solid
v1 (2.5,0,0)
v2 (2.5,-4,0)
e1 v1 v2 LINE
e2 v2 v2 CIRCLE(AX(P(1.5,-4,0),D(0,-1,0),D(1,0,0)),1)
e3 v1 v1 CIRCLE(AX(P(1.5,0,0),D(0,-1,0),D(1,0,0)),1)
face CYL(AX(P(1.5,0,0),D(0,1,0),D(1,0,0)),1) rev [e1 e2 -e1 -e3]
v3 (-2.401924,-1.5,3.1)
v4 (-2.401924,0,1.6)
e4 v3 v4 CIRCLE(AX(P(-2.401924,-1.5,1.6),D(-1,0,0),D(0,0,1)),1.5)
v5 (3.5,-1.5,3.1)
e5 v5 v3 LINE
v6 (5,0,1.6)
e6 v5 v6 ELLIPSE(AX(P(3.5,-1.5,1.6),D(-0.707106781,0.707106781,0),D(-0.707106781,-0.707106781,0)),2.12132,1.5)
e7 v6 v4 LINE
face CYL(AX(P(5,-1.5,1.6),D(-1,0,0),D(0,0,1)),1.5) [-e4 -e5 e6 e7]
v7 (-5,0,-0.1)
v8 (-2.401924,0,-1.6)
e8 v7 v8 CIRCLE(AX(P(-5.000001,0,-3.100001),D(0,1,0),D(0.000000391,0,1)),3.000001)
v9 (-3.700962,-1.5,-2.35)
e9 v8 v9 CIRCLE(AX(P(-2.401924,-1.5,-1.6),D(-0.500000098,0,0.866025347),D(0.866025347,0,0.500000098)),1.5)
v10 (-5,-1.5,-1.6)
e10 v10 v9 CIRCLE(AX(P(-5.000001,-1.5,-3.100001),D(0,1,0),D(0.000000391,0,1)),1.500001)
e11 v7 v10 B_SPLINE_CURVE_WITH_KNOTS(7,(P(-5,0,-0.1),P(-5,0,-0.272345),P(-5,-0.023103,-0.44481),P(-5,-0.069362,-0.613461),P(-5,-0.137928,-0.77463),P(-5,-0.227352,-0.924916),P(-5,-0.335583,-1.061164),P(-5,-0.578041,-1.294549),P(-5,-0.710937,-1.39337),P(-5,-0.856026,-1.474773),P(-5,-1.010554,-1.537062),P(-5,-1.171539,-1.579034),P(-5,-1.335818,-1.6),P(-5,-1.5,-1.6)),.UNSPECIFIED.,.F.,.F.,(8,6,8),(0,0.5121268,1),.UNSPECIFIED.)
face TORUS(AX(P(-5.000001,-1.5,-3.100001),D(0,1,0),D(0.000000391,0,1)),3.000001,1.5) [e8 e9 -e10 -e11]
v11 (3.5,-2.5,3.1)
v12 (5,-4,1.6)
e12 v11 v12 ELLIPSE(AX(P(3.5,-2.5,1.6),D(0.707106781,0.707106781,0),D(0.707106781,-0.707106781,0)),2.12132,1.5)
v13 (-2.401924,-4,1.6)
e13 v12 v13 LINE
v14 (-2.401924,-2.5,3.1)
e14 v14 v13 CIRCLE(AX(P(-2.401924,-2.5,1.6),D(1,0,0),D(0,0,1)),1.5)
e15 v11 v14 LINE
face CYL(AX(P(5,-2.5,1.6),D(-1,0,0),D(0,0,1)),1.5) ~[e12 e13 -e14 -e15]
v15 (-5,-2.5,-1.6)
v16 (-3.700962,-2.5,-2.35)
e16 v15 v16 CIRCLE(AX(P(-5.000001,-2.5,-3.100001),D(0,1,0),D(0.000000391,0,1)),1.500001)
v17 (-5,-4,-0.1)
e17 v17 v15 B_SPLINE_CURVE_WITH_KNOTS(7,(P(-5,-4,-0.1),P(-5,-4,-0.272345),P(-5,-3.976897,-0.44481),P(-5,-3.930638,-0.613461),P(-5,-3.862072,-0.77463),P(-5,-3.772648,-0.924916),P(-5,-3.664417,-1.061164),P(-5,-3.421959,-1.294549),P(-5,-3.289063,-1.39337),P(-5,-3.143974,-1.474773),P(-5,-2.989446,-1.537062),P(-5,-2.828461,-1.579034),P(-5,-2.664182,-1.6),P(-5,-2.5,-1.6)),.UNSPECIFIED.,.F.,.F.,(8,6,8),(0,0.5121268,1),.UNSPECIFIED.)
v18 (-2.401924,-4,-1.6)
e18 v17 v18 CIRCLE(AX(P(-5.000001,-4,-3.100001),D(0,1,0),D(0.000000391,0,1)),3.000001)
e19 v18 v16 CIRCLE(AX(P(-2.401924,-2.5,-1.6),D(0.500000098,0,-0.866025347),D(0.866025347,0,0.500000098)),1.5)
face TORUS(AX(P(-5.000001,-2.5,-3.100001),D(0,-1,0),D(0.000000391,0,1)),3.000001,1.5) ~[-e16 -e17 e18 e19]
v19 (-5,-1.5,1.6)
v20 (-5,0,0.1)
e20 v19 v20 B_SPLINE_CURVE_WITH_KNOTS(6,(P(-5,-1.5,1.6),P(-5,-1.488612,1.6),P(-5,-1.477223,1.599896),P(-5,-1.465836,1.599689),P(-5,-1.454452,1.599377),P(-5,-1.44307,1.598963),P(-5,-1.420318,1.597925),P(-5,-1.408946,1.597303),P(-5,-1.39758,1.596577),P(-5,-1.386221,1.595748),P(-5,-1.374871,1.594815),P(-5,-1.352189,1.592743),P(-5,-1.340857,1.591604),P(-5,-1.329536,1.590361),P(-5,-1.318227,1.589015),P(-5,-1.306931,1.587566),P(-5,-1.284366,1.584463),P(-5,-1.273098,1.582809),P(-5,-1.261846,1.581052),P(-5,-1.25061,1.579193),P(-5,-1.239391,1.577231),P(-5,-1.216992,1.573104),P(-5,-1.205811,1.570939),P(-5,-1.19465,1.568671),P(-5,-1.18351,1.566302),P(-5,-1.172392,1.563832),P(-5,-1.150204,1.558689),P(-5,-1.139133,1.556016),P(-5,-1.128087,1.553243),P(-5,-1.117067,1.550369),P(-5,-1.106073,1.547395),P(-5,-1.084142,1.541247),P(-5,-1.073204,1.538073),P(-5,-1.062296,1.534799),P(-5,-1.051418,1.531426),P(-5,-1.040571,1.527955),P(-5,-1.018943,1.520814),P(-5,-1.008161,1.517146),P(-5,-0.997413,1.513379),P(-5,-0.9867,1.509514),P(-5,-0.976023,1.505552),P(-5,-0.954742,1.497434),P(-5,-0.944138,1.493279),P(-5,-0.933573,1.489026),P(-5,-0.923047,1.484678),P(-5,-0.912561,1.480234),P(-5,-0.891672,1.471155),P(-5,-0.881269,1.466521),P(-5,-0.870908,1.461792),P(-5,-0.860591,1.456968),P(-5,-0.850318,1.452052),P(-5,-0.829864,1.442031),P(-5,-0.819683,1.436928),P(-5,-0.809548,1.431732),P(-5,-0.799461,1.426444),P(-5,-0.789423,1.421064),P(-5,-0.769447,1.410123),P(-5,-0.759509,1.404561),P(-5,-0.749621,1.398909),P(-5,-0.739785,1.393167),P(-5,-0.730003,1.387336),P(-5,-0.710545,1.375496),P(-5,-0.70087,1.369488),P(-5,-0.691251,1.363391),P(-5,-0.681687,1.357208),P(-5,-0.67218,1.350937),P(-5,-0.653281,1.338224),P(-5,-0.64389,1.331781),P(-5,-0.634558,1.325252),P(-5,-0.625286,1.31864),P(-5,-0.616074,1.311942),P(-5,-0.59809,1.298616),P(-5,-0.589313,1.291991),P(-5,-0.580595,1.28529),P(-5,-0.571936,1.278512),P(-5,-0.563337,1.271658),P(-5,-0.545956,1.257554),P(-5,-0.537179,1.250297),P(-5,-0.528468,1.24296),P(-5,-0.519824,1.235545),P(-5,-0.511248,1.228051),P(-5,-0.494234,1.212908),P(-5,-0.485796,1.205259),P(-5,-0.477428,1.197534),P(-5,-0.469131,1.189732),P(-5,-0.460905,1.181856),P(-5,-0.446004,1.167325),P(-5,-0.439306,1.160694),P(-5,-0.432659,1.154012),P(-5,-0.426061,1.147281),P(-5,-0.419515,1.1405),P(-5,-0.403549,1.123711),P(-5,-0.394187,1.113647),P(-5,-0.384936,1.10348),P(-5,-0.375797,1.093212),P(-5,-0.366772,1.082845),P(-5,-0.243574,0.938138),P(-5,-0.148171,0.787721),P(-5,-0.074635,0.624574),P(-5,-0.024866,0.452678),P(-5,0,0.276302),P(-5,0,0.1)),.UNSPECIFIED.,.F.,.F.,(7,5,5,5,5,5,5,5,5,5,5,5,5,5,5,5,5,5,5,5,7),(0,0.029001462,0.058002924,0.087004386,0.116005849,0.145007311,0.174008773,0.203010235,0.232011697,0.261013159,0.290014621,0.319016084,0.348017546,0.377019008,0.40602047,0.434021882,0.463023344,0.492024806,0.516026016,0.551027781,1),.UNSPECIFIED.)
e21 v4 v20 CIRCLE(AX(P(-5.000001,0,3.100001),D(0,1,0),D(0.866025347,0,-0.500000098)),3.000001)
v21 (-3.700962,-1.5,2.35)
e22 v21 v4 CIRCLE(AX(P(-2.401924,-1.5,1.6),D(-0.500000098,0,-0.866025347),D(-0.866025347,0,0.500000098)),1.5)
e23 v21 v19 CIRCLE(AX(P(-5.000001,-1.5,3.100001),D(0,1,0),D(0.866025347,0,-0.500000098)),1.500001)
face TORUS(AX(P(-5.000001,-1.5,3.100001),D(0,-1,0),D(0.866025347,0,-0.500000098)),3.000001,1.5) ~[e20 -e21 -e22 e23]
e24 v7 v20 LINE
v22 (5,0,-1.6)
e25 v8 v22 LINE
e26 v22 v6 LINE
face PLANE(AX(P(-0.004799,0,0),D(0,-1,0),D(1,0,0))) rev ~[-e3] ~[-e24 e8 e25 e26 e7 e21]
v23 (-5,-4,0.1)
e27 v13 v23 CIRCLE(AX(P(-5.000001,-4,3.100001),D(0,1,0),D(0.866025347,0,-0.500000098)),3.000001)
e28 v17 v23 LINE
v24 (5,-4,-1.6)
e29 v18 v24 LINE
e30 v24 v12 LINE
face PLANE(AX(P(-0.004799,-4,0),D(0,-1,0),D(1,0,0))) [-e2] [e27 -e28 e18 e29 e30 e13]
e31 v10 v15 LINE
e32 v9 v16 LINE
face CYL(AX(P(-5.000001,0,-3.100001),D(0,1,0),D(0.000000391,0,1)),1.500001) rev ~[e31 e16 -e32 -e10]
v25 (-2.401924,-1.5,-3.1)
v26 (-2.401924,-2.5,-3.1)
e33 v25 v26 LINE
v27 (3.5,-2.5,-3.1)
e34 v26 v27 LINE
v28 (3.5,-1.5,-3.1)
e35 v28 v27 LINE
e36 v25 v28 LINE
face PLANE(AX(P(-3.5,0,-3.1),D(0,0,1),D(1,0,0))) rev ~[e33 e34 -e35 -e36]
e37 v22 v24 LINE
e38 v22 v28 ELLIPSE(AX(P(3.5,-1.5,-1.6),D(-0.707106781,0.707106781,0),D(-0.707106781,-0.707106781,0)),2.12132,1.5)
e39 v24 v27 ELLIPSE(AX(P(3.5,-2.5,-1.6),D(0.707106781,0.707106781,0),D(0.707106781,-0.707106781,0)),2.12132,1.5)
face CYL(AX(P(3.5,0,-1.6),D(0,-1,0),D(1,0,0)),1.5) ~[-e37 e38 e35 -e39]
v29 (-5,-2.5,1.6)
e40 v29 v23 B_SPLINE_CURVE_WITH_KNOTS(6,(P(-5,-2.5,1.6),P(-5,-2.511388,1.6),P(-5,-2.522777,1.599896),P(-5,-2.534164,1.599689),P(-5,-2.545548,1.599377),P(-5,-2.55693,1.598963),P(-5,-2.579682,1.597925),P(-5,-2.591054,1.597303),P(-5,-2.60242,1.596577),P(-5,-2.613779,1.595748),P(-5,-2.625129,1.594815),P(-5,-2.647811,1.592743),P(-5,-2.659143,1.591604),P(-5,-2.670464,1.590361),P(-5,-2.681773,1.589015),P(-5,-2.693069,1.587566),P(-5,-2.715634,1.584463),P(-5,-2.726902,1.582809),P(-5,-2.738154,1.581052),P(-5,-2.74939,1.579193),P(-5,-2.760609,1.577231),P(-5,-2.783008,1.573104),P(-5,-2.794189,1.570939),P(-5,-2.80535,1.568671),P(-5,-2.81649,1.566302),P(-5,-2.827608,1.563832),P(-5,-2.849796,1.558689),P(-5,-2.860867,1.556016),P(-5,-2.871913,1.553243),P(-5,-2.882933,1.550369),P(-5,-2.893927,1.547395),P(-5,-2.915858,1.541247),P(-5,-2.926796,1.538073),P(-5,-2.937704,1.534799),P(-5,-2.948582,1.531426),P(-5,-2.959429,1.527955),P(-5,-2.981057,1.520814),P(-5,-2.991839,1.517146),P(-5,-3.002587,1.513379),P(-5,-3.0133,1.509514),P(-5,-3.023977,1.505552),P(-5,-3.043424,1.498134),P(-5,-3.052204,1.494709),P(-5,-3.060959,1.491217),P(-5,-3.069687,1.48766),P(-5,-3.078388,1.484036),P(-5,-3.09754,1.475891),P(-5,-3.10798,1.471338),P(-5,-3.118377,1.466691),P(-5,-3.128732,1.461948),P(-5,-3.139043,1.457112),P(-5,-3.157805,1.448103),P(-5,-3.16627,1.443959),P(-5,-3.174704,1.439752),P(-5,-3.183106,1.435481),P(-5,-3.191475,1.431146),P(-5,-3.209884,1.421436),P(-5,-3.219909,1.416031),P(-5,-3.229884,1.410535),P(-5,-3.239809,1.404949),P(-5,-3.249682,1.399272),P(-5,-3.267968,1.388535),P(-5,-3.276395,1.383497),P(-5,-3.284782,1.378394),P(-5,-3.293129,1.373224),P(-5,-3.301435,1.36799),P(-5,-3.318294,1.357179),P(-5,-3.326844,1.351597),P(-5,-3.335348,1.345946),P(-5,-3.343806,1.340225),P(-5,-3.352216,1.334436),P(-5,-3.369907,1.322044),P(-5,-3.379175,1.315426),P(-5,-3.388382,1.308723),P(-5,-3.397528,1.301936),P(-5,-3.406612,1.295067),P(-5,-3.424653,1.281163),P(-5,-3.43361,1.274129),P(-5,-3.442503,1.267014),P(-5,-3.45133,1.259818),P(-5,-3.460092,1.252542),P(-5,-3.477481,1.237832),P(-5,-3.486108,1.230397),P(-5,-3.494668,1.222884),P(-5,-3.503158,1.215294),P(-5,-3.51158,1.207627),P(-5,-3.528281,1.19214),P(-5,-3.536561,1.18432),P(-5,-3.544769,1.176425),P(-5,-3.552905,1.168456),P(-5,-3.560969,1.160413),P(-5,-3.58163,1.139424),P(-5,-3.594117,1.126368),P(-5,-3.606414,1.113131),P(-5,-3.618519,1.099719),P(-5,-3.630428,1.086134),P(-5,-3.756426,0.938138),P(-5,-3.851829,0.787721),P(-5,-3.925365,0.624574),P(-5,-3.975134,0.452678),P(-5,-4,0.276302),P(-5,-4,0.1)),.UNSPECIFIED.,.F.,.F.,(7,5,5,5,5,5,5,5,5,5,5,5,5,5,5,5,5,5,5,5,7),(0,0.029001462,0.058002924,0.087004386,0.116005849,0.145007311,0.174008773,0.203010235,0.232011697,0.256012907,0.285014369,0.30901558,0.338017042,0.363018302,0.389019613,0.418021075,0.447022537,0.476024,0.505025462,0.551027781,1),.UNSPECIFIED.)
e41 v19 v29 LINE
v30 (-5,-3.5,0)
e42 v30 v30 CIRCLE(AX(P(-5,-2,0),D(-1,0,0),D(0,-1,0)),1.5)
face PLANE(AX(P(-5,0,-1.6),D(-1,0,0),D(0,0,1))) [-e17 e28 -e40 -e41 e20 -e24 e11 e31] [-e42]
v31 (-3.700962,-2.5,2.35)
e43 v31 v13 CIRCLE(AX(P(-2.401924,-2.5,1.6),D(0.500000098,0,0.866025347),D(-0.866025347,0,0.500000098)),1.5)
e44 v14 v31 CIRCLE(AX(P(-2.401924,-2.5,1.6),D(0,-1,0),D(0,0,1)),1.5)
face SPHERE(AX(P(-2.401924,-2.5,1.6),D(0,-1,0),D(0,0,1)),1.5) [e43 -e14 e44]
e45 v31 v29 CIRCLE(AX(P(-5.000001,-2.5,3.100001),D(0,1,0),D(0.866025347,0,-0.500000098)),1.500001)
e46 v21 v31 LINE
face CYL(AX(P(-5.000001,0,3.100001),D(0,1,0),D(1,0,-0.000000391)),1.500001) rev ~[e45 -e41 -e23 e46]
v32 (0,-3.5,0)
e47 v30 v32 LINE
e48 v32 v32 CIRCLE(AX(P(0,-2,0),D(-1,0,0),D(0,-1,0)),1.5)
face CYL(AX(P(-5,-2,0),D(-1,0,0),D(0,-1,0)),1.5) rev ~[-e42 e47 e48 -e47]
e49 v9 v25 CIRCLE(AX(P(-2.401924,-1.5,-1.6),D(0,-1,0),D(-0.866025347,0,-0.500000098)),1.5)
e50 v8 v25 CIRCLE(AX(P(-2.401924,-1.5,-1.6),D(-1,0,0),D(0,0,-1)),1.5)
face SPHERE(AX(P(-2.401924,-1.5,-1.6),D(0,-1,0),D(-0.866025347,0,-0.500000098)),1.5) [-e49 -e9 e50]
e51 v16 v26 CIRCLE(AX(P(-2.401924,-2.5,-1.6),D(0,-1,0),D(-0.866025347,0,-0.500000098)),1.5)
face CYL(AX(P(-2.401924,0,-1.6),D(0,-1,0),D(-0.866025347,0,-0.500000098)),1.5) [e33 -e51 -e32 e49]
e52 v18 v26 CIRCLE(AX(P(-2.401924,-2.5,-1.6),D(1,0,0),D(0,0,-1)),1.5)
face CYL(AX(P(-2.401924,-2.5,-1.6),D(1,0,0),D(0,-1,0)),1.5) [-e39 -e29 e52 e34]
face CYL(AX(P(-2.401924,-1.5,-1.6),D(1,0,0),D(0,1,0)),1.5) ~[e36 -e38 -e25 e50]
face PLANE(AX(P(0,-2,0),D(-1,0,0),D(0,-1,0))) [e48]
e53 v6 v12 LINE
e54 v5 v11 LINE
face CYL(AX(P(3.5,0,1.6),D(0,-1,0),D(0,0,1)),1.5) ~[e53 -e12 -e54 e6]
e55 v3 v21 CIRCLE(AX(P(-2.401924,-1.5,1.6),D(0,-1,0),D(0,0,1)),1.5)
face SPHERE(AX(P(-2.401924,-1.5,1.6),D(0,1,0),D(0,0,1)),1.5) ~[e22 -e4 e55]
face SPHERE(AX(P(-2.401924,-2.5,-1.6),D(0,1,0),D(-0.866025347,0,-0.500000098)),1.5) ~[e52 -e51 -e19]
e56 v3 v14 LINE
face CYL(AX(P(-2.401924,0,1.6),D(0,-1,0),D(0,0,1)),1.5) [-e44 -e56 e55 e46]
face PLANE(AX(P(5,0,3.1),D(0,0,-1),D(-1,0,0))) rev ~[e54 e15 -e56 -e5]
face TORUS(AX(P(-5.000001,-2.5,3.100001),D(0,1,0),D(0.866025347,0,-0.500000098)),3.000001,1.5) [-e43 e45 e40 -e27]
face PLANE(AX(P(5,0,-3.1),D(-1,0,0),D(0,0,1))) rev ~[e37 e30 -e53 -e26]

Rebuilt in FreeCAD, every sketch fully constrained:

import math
import FreeCAD as App
import Part
import Sketcher
Q = App.Units.Quantity


def edges_at(feature, points):
    """Names of the edges that pass closest to the given points."""
    edges = feature.Shape.Edges
    near = lambda p: min(range(len(edges)), key=lambda i: edges[i].distToShape(Part.Vertex(*p))[0])
    return sorted({f"Edge{near(p) + 1}" for p in points})

doc = App.newDocument("Part")
params = doc.addObject("Spreadsheet::Sheet", "Params")
for row, (alias, value) in enumerate([
    ("sketch1_diameter", "2 mm"),
    ("sketch1_radius", "1.500001 mm"),
    ("sketch1_width", "8.5 mm"),
    ("sketch1_height", "3.2 mm"),
    ("sketch1_height2", "6.2 mm"),
    ("pad1_length", "4 mm"),
    ("fillet_radius", "1.5 mm"),
    ("sketch2_diameter", "3 mm"),
    ("pocket1_length", "5 mm"),
    ("fillet2_radius", "1.5 mm"),
], start=1):
    params.set(f"A{row}", alias)
    params.set(f"B{row}", "=" + value)
    params.setAlias(f"B{row}", alias)

body = doc.addObject("PartDesign::Body", "Body")

# Sketch on XZ plane
sketch1 = body.newObject("Sketcher::SketchObject", "Sketch")
sketch1.AttachmentSupport = (doc.getObject("XZ_Plane"), [""])
sketch1.MapMode = "FlatFace"
sketch1.addGeometry([
    Part.LineSegment(App.Vector(5, 3.1, 0), App.Vector(-3.5, 3.1, 0)),  # 0
    Part.ArcOfCircle(Part.Circle(App.Vector(-5.000001, 3.100001, 0), App.Vector(0, 0, 1), 1.500001), math.radians(-89.999978), math.radians(-0.000022)),  # 1
    Part.LineSegment(App.Vector(-5, 1.6, 0), App.Vector(-5, -1.6, 0)),  # 2
    Part.ArcOfCircle(Part.Circle(App.Vector(-5.000001, -3.100001, 0), App.Vector(0, 0, 1), 1.500001), math.radians(0.000022), math.radians(89.999978)),  # 3
    Part.LineSegment(App.Vector(-3.5, -3.1, 0), App.Vector(5, -3.1, 0)),  # 4
    Part.LineSegment(App.Vector(5, -3.1, 0), App.Vector(5, 3.1, 0)),  # 5
    Part.Circle(App.Vector(1.5, 0, 0), App.Vector(0, 0, 1), 1),  # 6
], False)
sketch1.addConstraint([
    Sketcher.Constraint("Coincident", 0, 2, 1, 2),
    Sketcher.Constraint("Coincident", 1, 1, 2, 1),
    Sketcher.Constraint("Coincident", 2, 2, 3, 2),
    Sketcher.Constraint("Coincident", 3, 1, 4, 1),
    Sketcher.Constraint("Coincident", 4, 2, 5, 1),
    Sketcher.Constraint("Coincident", 5, 2, 0, 1),
    Sketcher.Constraint("Horizontal", 0),
    Sketcher.Constraint("Vertical", 2),
    Sketcher.Constraint("Horizontal", 4),
    Sketcher.Constraint("Vertical", 5),
    Sketcher.Constraint("Equal", 1, 3),
    Sketcher.Constraint("Symmetric", 1, 3, 3, 3, -1),
    Sketcher.Constraint("PointOnObject", 6, 3, -1),
    Sketcher.Constraint("Horizontal", 1, 3, 0, 2),
    Sketcher.Constraint("Vertical", 3, 3, 1, 1),
    Sketcher.Constraint("Diameter", 6, Q("2 mm")),
    Sketcher.Constraint("Radius", 1, Q("1.500001 mm")),
    Sketcher.Constraint("DistanceX", 0, 2, 0, 1, Q("8.5 mm")),
    Sketcher.Constraint("DistanceY", 2, 2, 2, 1, Q("3.2 mm")),
    Sketcher.Constraint("DistanceY", 5, 1, 5, 2, Q("6.2 mm")),
    Sketcher.Constraint("DistanceX", 1, 3, -1, 1, Q("5.000001 mm")),
    Sketcher.Constraint("DistanceX", 0, 2, 6, 3, Q("5 mm")),
])
sketch1.setExpression("Constraints[15]", "Params.sketch1_diameter")
sketch1.setExpression("Constraints[16]", "Params.sketch1_radius")
sketch1.setExpression("Constraints[17]", "Params.sketch1_width")
sketch1.setExpression("Constraints[18]", "Params.sketch1_height")
sketch1.setExpression("Constraints[19]", "Params.sketch1_height2")
pad1 = body.newObject("PartDesign::Pad", "Pad")
pad1.Profile = sketch1
pad1.setExpression("Length", "Params.pad1_length")
doc.recompute()

fillet = body.newObject("PartDesign::Fillet", "Fillet")
fillet.Base = (pad1, edges_at(pad1, [(-3.5, -2, 3.1), (-3.5, -2, -3.1)]))
fillet.setExpression("Radius", "Params.fillet_radius")

# Sketch on YZ plane
sketch2 = body.newObject("Sketcher::SketchObject", "Sketch001")
sketch2.AttachmentSupport = (doc.getObject("YZ_Plane"), [""])
sketch2.MapMode = "FlatFace"
sketch2.AttachmentOffset = App.Placement(App.Vector(0, 0, -5), App.Rotation())
sketch2.addGeometry(Part.Circle(App.Vector(-2, 0, 0), App.Vector(0, 0, 1), 1.5), False)
sketch2.addConstraint([
    Sketcher.Constraint("PointOnObject", 0, 3, -1),
    Sketcher.Constraint("Diameter", 0, Q("3 mm")),
    Sketcher.Constraint("DistanceX", 0, 3, -1, 1, Q("2 mm")),
])
sketch2.setExpression("Constraints[1]", "Params.sketch2_diameter")
pocket1 = body.newObject("PartDesign::Pocket", "Pocket")
pocket1.Profile = sketch2
pocket1.setExpression("Length", "Params.pocket1_length")
pocket1.Reversed = True
doc.recompute()

fillet2 = body.newObject("PartDesign::Fillet", "Fillet001")
fillet2.Base = (pocket1, edges_at(pocket1, [
    (5, -2, 3.1),
    (1.299, -4, 3.1),
    (1.299, 0, 3.1),
    (5, -2, -3.1),
    (1.299, -4, -3.1),
    (1.299, 0, -3.1),
]))
fillet2.setExpression("Radius", "Params.fillet2_radius")

doc.recompute()
